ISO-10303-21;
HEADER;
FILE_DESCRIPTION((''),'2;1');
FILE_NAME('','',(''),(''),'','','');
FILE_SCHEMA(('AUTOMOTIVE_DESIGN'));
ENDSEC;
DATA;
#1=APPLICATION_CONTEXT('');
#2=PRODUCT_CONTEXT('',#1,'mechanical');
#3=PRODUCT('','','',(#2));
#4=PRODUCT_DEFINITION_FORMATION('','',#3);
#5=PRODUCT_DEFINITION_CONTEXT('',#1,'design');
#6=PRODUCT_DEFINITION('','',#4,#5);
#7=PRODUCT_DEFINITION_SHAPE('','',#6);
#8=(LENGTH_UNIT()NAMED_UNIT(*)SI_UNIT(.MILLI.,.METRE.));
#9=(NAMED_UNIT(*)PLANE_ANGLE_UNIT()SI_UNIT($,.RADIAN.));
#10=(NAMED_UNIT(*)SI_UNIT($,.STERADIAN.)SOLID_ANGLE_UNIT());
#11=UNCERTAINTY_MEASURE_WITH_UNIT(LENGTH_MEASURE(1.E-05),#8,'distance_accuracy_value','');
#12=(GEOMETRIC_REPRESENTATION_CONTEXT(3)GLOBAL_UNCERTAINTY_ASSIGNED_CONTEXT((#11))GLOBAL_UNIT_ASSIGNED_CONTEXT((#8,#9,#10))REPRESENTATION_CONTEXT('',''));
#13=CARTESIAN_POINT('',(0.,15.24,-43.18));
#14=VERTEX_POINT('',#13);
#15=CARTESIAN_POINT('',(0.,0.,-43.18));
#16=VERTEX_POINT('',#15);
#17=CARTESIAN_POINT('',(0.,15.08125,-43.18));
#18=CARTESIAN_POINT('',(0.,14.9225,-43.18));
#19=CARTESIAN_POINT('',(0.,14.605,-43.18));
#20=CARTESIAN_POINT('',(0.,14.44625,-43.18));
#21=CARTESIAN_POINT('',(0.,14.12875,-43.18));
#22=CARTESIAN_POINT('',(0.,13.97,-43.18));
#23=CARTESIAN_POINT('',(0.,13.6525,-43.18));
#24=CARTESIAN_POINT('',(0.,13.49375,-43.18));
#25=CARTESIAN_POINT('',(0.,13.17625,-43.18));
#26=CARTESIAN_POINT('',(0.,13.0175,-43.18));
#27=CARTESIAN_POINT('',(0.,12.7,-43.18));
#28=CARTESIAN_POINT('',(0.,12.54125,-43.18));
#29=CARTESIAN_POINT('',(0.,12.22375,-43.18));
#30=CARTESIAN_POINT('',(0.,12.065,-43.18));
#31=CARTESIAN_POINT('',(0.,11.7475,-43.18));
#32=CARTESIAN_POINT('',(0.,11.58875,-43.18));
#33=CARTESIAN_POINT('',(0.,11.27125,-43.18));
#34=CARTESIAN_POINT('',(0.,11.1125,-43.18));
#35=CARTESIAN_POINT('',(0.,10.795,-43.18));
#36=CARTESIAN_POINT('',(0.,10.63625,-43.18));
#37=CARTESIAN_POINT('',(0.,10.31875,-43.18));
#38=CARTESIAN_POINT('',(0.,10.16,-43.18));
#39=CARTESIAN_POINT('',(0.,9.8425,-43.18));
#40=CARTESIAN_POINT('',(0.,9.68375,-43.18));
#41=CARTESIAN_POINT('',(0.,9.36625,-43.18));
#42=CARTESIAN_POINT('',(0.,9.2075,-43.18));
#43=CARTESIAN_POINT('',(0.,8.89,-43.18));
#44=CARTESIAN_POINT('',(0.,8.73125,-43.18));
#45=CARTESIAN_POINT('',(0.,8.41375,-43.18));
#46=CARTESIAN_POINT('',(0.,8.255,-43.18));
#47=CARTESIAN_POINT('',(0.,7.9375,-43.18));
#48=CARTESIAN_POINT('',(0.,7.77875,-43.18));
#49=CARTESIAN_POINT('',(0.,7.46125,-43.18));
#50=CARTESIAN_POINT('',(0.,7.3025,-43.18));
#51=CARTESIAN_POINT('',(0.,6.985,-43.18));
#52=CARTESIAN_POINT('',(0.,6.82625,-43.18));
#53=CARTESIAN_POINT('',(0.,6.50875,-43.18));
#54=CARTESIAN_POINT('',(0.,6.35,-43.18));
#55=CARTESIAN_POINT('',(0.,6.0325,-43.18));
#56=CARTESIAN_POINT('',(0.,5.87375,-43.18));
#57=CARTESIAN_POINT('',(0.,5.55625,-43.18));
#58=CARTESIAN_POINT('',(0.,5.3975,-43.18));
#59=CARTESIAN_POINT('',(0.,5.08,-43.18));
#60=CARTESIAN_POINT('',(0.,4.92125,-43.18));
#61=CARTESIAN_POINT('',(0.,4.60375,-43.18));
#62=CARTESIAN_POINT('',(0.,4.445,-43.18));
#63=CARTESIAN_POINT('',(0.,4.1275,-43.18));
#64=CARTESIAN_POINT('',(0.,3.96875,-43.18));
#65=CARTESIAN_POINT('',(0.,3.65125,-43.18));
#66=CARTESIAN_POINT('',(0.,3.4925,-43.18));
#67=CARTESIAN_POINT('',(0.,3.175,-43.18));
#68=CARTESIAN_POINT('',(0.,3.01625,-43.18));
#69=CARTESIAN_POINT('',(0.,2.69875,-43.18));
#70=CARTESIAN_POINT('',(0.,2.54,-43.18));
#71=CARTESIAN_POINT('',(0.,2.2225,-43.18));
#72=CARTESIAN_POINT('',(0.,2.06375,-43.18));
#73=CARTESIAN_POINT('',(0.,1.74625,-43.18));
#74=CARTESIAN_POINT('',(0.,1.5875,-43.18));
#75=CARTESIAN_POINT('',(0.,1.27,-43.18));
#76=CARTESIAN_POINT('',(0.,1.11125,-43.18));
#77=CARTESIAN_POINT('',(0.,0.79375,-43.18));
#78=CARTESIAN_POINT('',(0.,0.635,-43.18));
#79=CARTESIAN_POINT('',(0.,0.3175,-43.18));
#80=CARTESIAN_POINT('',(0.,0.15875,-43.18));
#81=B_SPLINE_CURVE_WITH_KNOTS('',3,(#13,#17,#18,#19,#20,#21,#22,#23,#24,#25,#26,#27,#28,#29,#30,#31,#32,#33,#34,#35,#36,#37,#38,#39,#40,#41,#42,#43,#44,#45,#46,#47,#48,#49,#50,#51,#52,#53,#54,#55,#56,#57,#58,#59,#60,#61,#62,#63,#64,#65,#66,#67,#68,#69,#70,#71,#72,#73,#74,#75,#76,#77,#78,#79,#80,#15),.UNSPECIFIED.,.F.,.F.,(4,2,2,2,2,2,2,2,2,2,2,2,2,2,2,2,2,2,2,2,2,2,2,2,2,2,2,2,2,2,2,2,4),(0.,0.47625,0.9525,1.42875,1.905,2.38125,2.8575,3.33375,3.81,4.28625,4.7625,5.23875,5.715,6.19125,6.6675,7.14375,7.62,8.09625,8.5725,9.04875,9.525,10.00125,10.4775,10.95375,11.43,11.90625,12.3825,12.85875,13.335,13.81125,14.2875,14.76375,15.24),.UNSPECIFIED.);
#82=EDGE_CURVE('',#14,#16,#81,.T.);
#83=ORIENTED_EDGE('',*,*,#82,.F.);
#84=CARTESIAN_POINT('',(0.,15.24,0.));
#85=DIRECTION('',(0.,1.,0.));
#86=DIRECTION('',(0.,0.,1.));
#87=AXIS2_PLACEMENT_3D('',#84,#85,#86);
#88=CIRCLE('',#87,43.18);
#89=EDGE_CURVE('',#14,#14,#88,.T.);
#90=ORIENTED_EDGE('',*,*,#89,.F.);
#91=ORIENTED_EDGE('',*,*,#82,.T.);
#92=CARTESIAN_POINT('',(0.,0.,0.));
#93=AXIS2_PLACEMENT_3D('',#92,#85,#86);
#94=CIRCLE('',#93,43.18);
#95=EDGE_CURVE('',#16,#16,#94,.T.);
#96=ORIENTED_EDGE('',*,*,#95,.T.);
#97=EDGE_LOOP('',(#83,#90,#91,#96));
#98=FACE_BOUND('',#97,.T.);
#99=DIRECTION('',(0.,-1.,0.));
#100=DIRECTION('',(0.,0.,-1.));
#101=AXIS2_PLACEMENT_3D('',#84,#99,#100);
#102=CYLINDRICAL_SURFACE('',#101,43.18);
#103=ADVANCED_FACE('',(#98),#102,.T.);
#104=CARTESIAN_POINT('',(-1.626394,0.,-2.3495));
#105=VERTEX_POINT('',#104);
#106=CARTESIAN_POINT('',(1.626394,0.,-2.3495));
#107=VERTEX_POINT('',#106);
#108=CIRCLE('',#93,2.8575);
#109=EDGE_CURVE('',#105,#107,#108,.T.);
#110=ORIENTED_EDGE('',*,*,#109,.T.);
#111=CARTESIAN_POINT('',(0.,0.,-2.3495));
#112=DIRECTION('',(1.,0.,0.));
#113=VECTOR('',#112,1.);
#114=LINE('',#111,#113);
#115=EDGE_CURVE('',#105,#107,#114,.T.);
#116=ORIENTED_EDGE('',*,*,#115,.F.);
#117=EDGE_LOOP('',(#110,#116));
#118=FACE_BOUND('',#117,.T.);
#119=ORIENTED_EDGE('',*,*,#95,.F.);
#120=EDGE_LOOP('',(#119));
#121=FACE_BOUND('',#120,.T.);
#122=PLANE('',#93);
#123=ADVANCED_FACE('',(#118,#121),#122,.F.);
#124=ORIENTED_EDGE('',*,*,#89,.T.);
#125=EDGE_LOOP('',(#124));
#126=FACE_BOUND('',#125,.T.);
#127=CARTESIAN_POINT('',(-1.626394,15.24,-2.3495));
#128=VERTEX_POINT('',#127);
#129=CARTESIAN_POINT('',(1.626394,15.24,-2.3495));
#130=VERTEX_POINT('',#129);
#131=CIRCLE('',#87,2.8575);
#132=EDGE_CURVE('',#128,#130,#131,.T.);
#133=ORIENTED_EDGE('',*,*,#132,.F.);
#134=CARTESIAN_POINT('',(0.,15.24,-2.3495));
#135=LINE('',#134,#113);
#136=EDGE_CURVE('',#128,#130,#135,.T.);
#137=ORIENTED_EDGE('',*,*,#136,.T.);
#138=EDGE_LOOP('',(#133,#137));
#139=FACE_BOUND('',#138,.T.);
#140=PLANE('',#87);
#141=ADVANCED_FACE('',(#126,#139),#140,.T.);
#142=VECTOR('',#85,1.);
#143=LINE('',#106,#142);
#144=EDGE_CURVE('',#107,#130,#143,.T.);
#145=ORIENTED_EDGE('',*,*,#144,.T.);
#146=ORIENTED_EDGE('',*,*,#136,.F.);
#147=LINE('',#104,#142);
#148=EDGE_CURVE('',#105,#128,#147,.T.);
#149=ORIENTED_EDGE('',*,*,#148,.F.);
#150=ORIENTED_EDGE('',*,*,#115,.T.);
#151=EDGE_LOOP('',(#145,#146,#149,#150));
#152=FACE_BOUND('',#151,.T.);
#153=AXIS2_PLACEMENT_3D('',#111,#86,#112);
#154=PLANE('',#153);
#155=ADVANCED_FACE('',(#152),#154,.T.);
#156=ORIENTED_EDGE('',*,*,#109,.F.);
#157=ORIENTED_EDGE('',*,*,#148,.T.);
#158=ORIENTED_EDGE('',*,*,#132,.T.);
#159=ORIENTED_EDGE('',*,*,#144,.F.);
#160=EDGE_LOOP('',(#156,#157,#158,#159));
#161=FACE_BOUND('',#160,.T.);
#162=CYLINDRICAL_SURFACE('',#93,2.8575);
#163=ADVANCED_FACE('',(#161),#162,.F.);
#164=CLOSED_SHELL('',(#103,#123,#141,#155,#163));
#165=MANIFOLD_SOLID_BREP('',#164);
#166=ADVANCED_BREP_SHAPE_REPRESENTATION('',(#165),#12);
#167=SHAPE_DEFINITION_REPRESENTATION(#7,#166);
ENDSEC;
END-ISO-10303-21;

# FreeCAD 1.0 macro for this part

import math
import FreeCAD as App
import Part
import Sketcher
from FreeCAD import Vector
Q = App.Units.Quantity

doc = App.newDocument("Part")
params = doc.addObject("Spreadsheet::Sheet", "Params")
for row, (alias, value) in enumerate([
    ("sketch1_diameter", "3.4 in"),
    ("pad1_length", "0.6 in"),
], start=1):
    params.set(f"A{row}", alias)
    params.set(f"B{row}", "=" + value)
    params.setAlias(f"B{row}", alias)

body = doc.addObject("PartDesign::Body", "Body")

# Sketch on XZ plane
sketch1 = body.newObject("Sketcher::SketchObject", "Sketch")
sketch1.AttachmentSupport = (doc.getObject("XZ_Plane"), [""])
sketch1.MapMode = "FlatFace"
sketch1.addGeometry(Part.Circle(Vector(0, 0, 0), Vector(0, 0, 1), 43.18), False)
sketch1.addConstraint([
    Sketcher.Constraint("Coincident", 0, 3, -1, 1),
    Sketcher.Constraint("Diameter", 0, Q("3.4 in")),
])
sketch1.setExpression("Constraints[1]", "Params.sketch1_diameter")
pad1 = body.newObject("PartDesign::Pad", "Pad")
pad1.Profile = sketch1
pad1.setExpression("Length", "Params.pad1_length")
pad1.Reversed = True

# Sketch on XZ plane
sketch2 = body.newObject("Sketcher::SketchObject", "Sketch001")
sketch2.AttachmentSupport = (doc.getObject("XZ_Plane"), [""])
sketch2.MapMode = "FlatFace"
sketch2.AttachmentOffset = App.Placement(Vector(0, 0, -0.6 * 25.4), App.Rotation())
sketch2.addGeometry([
    Part.LineSegment(Vector(1.626394, -2.3495, 0), Vector(-1.626394, -2.3495, 0)),
    Part.ArcOfCircle(Part.Circle(Vector(0, 0, 0), Vector(0, 0, 1), 2.8575), math.radians(0), math.radians(235.307869)),
    Part.ArcOfCircle(Part.Circle(Vector(0, 0, 0), Vector(0, 0, 1), 2.8575), math.radians(-55.307869), math.radians(0)),
], False)
sketch2.addConstraint([
    Sketcher.Constraint("Coincident", 0, 2, 1, 2),
    Sketcher.Constraint("Tangent", 1, 1, 2, 2),
    Sketcher.Constraint("Coincident", 2, 1, 0, 1),
    Sketcher.Constraint("Horizontal", 0),
    Sketcher.Constraint("Coincident", 1, 3, -1, 1),
    Sketcher.Constraint("Equal", 1, 2),
    Sketcher.Constraint("PointOnObject", 1, 1, -1),
    Sketcher.Constraint("Radius", 1, Q("0.1125 in")),
    Sketcher.Constraint("DistanceY", 0, 2, -1, 1, Q("0.0925 in")),
])
pocket1 = body.newObject("PartDesign::Pocket", "Pocket")
pocket1.Profile = sketch2
pocket1.Type = "ThroughAll"
pocket1.Reversed = True

doc.recompute()
